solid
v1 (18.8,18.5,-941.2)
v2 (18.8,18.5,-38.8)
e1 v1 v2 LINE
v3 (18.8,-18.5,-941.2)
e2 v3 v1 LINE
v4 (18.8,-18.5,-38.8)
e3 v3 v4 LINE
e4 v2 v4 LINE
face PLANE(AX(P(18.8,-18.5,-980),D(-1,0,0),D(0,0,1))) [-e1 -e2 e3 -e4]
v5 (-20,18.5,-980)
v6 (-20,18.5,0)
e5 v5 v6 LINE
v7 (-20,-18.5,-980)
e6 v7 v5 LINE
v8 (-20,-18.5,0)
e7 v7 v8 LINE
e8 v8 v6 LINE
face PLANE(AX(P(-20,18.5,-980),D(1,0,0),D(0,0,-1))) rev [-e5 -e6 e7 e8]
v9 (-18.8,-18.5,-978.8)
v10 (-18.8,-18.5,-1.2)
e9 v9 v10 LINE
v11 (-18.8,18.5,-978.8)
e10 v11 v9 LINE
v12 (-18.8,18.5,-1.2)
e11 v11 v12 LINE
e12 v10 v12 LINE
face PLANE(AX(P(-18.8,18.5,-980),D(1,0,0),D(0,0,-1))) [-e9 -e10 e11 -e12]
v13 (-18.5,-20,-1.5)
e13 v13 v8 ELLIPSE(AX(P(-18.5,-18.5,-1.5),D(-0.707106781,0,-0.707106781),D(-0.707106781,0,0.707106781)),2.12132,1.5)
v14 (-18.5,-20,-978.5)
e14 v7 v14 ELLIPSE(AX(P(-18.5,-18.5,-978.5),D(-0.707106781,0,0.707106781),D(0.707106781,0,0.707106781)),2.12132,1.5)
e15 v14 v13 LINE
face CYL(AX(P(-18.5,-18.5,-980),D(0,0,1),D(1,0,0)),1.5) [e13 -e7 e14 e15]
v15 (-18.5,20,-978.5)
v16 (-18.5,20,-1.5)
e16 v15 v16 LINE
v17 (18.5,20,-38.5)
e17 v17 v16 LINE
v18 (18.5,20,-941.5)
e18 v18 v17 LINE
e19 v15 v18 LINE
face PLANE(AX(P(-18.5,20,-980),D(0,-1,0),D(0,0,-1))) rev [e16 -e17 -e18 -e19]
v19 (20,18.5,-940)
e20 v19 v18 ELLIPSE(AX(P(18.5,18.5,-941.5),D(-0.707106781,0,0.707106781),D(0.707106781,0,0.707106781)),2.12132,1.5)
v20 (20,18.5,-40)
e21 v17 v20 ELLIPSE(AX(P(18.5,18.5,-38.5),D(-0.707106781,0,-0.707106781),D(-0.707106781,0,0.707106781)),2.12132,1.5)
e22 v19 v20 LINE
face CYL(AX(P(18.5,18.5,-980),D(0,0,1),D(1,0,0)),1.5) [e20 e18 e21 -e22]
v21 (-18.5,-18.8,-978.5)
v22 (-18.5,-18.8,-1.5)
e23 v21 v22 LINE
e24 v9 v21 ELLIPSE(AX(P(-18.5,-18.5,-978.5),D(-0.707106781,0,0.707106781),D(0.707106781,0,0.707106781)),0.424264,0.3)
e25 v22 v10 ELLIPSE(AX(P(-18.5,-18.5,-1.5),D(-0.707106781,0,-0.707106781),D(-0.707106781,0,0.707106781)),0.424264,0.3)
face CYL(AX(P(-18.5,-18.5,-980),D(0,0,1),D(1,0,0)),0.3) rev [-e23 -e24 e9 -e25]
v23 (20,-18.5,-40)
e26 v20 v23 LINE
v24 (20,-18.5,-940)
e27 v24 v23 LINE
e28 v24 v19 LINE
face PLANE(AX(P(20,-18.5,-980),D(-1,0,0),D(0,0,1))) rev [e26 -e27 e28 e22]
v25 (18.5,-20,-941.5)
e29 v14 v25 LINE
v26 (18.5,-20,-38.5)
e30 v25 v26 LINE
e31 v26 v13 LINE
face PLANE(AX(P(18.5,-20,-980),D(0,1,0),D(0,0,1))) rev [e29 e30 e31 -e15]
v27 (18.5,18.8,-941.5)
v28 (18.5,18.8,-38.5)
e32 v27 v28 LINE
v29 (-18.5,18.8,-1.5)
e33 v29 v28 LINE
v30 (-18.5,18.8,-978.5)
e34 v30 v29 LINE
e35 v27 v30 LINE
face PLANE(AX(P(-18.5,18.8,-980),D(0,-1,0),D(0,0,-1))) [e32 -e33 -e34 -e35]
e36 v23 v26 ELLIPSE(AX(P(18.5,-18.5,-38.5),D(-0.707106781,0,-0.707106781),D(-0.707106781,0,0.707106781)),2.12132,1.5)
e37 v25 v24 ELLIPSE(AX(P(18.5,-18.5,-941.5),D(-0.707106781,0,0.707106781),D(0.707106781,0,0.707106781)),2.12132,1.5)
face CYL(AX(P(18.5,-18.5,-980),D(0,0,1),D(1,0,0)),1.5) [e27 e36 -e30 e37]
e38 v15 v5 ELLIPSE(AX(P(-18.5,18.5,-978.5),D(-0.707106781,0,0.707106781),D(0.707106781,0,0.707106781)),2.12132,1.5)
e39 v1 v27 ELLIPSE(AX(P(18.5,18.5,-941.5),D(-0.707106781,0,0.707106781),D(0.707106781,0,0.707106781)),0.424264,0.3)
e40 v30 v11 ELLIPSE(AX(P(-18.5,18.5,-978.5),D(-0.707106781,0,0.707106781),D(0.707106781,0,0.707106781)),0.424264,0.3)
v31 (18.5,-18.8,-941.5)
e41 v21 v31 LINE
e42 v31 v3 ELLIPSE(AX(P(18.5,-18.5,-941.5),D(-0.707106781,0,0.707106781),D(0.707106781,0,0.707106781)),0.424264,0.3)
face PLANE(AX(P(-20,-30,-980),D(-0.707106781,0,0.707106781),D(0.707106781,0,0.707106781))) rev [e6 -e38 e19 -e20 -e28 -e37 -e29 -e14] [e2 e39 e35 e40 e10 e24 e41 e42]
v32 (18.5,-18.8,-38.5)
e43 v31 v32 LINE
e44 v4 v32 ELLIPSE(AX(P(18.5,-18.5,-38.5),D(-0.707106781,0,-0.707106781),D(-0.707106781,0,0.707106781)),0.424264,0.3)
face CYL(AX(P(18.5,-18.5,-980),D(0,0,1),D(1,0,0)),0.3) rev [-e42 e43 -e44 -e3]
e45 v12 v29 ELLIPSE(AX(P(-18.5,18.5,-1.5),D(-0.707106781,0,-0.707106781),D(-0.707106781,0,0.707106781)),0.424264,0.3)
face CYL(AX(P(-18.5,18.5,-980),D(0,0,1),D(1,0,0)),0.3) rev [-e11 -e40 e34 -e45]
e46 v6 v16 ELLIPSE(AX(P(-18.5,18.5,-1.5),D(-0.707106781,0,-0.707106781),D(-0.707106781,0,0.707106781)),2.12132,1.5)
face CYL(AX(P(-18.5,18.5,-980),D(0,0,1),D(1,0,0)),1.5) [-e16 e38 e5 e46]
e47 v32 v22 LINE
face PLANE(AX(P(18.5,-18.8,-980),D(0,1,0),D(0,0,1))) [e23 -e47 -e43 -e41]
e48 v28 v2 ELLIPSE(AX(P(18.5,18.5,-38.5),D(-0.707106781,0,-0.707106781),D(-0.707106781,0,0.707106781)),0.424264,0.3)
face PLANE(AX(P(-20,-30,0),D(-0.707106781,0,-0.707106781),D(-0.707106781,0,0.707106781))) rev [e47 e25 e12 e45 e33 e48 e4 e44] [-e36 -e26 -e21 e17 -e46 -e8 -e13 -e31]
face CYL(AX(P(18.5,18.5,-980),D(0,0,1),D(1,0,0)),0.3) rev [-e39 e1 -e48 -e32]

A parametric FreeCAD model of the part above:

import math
import FreeCAD as App
import Part
import Sketcher

V = App.Vector
Q = App.Units.Quantity


def add_polygon(sketch, points):
    """Adds a closed chain of lines whose ends are joined by coincident constraints."""
    first, n = sketch.GeometryCount, len(points)
    for a, b in zip(points, points[1:] + points[:1]):
        sketch.addGeometry(Part.LineSegment(App.Vector(*a, 0), App.Vector(*b, 0)), False)
    for i in range(n):
        sketch.addConstraint(Sketcher.Constraint("Coincident", first + i, 2, first + (i + 1) % n, 1))

doc = App.newDocument("Part")
body = doc.addObject("PartDesign::Body", "Body")

sketch1 = doc.addObject("Sketcher::SketchObject", "Sketch")
body.addObject(sketch1)
sketch1.AttachmentSupport = (doc.XY_Plane, [""])
sketch1.MapMode = "FlatFace"
sketch1.addGeometry([
    Part.LineSegment(V(18.5, -20, 0), V(-18.5, -20, 0)),
    Part.ArcOfCircle(Part.Circle(V(-18.5, -18.5, 0), V(0, 0, 1), 1.5), math.radians(180), math.radians(270)),
    Part.LineSegment(V(-20, -18.5, 0), V(-20, 18.5, 0)),
    Part.ArcOfCircle(Part.Circle(V(-18.5, 18.5, 0), V(0, 0, 1), 1.5), math.radians(90), math.radians(180)),
    Part.LineSegment(V(-18.5, 20, 0), V(18.5, 20, 0)),
    Part.ArcOfCircle(Part.Circle(V(18.5, 18.5, 0), V(0, 0, 1), 1.5), math.radians(0), math.radians(90)),
    Part.LineSegment(V(20, 18.5, 0), V(20, -18.5, 0)),
    Part.ArcOfCircle(Part.Circle(V(18.5, -18.5, 0), V(0, 0, 1), 1.5), math.radians(-90), math.radians(0)),
    Part.LineSegment(V(-18.5, -18.8, 0), V(18.5, -18.8, 0)),
    Part.ArcOfCircle(Part.Circle(V(18.5, -18.5, 0), V(0, 0, 1), 0.3), math.radians(-90), math.radians(0)),
    Part.LineSegment(V(18.8, -18.5, 0), V(18.8, 18.5, 0)),
    Part.ArcOfCircle(Part.Circle(V(18.5, 18.5, 0), V(0, 0, 1), 0.3), math.radians(0), math.radians(90)),
    Part.LineSegment(V(18.5, 18.8, 0), V(-18.5, 18.8, 0)),
    Part.ArcOfCircle(Part.Circle(V(-18.5, 18.5, 0), V(0, 0, 1), 0.3), math.radians(90), math.radians(180)),
    Part.LineSegment(V(-18.8, 18.5, 0), V(-18.8, -18.5, 0)),
    Part.ArcOfCircle(Part.Circle(V(-18.5, -18.5, 0), V(0, 0, 1), 0.3), math.radians(-180), math.radians(-90)),
], False)
sketch1.addConstraint([
    Sketcher.Constraint("Tangent", 0, 2, 1, 2),
    Sketcher.Constraint("Tangent", 1, 1, 2, 1),
    Sketcher.Constraint("Tangent", 2, 2, 3, 2),
    Sketcher.Constraint("Tangent", 3, 1, 4, 1),
    Sketcher.Constraint("Tangent", 4, 2, 5, 2),
    Sketcher.Constraint("Tangent", 5, 1, 6, 1),
    Sketcher.Constraint("Tangent", 6, 2, 7, 2),
    Sketcher.Constraint("Tangent", 7, 1, 0, 1),
    Sketcher.Constraint("Tangent", 8, 2, 9, 1),
    Sketcher.Constraint("Tangent", 9, 2, 10, 1),
    Sketcher.Constraint("Tangent", 10, 2, 11, 1),
    Sketcher.Constraint("Tangent", 11, 2, 12, 1),
    Sketcher.Constraint("Tangent", 12, 2, 13, 1),
    Sketcher.Constraint("Tangent", 13, 2, 14, 1),
    Sketcher.Constraint("Tangent", 14, 2, 15, 1),
    Sketcher.Constraint("Tangent", 15, 2, 8, 1),
    Sketcher.Constraint("Horizontal", 0),
    Sketcher.Constraint("Vertical", 2),
    Sketcher.Constraint("Horizontal", 4),
    Sketcher.Constraint("Vertical", 6),
    Sketcher.Constraint("Horizontal", 8),
    Sketcher.Constraint("Vertical", 10),
    Sketcher.Constraint("Horizontal", 12),
    Sketcher.Constraint("Vertical", 14),
    Sketcher.Constraint("Coincident", 9, 3, 7, 3),
    Sketcher.Constraint("Coincident", 11, 3, 5, 3),
    Sketcher.Constraint("Coincident", 13, 3, 3, 3),
    Sketcher.Constraint("Equal", 1, 3),
    Sketcher.Constraint("Equal", 3, 5),
    Sketcher.Constraint("Equal", 5, 7),
    Sketcher.Constraint("Equal", 13, 15),
    Sketcher.Constraint("Symmetric", 1, 3, 5, 3, -1, 1),
    Sketcher.Constraint("Equal", 12, 2),
    Sketcher.Constraint("Radius", 1, Q("1.5 mm")),
    Sketcher.Constraint("Radius", 9, Q("0.3 mm")),
    Sketcher.Constraint("DistanceX", 0, 2, 0, 1, Q("37 mm")),
])
pad1 = doc.addObject("PartDesign::Pad", "Pad")
body.addObject(pad1)
pad1.Profile = sketch1
pad1.Length = 980
pad1.Reversed = True

sketch2 = doc.addObject("Sketcher::SketchObject", "Sketch001")
body.addObject(sketch2)
sketch2.AttachmentSupport = (doc.XZ_Plane, [""])
sketch2.MapMode = "FlatFace"
sketch2.AttachmentOffset = App.Placement(V(0, 0, -20), App.Rotation())
add_polygon(sketch2, [(-20, -980), (33.390808, -926.609192), (46.736117, -1004.399995)])
add_polygon(sketch2, [(46.736117, 24.399995), (33.390808, -53.390808), (-20, 0)])
sketch2.addConstraint([
    Sketcher.Constraint("PointOnObject", 4, 2, -1),
    Sketcher.Constraint("Perpendicular", 0, 4),
    Sketcher.Constraint("Vertical", 0, 2, 3, 2),
    Sketcher.Constraint("Vertical", 2, 2, 4, 2),
    Sketcher.Constraint("Vertical", 1, 2, 5, 2),
    Sketcher.Constraint("Equal", 1, 3),
    Sketcher.Constraint("Equal", 0, 4),
    Sketcher.Constraint("DistanceX", 2, 2, -1, 1, Q("20 mm")),
    Sketcher.Constraint("DistanceY", 2, 2, -1, 1, Q("980 mm")),
    Sketcher.Constraint("Distance", 2, Q("71.056802 mm")),
    Sketcher.Constraint("Distance", 1, Q("78.927222 mm")),
    Sketcher.Constraint("DistanceX", 0, 2, 1, 2, Q("13.34531 mm")),
])
pocket1 = doc.addObject("PartDesign::Pocket", "Pocket")
body.addObject(pocket1)
pocket1.Profile = sketch2
pocket1.Length = 50
pocket1.Reversed = True

doc.recompute()
